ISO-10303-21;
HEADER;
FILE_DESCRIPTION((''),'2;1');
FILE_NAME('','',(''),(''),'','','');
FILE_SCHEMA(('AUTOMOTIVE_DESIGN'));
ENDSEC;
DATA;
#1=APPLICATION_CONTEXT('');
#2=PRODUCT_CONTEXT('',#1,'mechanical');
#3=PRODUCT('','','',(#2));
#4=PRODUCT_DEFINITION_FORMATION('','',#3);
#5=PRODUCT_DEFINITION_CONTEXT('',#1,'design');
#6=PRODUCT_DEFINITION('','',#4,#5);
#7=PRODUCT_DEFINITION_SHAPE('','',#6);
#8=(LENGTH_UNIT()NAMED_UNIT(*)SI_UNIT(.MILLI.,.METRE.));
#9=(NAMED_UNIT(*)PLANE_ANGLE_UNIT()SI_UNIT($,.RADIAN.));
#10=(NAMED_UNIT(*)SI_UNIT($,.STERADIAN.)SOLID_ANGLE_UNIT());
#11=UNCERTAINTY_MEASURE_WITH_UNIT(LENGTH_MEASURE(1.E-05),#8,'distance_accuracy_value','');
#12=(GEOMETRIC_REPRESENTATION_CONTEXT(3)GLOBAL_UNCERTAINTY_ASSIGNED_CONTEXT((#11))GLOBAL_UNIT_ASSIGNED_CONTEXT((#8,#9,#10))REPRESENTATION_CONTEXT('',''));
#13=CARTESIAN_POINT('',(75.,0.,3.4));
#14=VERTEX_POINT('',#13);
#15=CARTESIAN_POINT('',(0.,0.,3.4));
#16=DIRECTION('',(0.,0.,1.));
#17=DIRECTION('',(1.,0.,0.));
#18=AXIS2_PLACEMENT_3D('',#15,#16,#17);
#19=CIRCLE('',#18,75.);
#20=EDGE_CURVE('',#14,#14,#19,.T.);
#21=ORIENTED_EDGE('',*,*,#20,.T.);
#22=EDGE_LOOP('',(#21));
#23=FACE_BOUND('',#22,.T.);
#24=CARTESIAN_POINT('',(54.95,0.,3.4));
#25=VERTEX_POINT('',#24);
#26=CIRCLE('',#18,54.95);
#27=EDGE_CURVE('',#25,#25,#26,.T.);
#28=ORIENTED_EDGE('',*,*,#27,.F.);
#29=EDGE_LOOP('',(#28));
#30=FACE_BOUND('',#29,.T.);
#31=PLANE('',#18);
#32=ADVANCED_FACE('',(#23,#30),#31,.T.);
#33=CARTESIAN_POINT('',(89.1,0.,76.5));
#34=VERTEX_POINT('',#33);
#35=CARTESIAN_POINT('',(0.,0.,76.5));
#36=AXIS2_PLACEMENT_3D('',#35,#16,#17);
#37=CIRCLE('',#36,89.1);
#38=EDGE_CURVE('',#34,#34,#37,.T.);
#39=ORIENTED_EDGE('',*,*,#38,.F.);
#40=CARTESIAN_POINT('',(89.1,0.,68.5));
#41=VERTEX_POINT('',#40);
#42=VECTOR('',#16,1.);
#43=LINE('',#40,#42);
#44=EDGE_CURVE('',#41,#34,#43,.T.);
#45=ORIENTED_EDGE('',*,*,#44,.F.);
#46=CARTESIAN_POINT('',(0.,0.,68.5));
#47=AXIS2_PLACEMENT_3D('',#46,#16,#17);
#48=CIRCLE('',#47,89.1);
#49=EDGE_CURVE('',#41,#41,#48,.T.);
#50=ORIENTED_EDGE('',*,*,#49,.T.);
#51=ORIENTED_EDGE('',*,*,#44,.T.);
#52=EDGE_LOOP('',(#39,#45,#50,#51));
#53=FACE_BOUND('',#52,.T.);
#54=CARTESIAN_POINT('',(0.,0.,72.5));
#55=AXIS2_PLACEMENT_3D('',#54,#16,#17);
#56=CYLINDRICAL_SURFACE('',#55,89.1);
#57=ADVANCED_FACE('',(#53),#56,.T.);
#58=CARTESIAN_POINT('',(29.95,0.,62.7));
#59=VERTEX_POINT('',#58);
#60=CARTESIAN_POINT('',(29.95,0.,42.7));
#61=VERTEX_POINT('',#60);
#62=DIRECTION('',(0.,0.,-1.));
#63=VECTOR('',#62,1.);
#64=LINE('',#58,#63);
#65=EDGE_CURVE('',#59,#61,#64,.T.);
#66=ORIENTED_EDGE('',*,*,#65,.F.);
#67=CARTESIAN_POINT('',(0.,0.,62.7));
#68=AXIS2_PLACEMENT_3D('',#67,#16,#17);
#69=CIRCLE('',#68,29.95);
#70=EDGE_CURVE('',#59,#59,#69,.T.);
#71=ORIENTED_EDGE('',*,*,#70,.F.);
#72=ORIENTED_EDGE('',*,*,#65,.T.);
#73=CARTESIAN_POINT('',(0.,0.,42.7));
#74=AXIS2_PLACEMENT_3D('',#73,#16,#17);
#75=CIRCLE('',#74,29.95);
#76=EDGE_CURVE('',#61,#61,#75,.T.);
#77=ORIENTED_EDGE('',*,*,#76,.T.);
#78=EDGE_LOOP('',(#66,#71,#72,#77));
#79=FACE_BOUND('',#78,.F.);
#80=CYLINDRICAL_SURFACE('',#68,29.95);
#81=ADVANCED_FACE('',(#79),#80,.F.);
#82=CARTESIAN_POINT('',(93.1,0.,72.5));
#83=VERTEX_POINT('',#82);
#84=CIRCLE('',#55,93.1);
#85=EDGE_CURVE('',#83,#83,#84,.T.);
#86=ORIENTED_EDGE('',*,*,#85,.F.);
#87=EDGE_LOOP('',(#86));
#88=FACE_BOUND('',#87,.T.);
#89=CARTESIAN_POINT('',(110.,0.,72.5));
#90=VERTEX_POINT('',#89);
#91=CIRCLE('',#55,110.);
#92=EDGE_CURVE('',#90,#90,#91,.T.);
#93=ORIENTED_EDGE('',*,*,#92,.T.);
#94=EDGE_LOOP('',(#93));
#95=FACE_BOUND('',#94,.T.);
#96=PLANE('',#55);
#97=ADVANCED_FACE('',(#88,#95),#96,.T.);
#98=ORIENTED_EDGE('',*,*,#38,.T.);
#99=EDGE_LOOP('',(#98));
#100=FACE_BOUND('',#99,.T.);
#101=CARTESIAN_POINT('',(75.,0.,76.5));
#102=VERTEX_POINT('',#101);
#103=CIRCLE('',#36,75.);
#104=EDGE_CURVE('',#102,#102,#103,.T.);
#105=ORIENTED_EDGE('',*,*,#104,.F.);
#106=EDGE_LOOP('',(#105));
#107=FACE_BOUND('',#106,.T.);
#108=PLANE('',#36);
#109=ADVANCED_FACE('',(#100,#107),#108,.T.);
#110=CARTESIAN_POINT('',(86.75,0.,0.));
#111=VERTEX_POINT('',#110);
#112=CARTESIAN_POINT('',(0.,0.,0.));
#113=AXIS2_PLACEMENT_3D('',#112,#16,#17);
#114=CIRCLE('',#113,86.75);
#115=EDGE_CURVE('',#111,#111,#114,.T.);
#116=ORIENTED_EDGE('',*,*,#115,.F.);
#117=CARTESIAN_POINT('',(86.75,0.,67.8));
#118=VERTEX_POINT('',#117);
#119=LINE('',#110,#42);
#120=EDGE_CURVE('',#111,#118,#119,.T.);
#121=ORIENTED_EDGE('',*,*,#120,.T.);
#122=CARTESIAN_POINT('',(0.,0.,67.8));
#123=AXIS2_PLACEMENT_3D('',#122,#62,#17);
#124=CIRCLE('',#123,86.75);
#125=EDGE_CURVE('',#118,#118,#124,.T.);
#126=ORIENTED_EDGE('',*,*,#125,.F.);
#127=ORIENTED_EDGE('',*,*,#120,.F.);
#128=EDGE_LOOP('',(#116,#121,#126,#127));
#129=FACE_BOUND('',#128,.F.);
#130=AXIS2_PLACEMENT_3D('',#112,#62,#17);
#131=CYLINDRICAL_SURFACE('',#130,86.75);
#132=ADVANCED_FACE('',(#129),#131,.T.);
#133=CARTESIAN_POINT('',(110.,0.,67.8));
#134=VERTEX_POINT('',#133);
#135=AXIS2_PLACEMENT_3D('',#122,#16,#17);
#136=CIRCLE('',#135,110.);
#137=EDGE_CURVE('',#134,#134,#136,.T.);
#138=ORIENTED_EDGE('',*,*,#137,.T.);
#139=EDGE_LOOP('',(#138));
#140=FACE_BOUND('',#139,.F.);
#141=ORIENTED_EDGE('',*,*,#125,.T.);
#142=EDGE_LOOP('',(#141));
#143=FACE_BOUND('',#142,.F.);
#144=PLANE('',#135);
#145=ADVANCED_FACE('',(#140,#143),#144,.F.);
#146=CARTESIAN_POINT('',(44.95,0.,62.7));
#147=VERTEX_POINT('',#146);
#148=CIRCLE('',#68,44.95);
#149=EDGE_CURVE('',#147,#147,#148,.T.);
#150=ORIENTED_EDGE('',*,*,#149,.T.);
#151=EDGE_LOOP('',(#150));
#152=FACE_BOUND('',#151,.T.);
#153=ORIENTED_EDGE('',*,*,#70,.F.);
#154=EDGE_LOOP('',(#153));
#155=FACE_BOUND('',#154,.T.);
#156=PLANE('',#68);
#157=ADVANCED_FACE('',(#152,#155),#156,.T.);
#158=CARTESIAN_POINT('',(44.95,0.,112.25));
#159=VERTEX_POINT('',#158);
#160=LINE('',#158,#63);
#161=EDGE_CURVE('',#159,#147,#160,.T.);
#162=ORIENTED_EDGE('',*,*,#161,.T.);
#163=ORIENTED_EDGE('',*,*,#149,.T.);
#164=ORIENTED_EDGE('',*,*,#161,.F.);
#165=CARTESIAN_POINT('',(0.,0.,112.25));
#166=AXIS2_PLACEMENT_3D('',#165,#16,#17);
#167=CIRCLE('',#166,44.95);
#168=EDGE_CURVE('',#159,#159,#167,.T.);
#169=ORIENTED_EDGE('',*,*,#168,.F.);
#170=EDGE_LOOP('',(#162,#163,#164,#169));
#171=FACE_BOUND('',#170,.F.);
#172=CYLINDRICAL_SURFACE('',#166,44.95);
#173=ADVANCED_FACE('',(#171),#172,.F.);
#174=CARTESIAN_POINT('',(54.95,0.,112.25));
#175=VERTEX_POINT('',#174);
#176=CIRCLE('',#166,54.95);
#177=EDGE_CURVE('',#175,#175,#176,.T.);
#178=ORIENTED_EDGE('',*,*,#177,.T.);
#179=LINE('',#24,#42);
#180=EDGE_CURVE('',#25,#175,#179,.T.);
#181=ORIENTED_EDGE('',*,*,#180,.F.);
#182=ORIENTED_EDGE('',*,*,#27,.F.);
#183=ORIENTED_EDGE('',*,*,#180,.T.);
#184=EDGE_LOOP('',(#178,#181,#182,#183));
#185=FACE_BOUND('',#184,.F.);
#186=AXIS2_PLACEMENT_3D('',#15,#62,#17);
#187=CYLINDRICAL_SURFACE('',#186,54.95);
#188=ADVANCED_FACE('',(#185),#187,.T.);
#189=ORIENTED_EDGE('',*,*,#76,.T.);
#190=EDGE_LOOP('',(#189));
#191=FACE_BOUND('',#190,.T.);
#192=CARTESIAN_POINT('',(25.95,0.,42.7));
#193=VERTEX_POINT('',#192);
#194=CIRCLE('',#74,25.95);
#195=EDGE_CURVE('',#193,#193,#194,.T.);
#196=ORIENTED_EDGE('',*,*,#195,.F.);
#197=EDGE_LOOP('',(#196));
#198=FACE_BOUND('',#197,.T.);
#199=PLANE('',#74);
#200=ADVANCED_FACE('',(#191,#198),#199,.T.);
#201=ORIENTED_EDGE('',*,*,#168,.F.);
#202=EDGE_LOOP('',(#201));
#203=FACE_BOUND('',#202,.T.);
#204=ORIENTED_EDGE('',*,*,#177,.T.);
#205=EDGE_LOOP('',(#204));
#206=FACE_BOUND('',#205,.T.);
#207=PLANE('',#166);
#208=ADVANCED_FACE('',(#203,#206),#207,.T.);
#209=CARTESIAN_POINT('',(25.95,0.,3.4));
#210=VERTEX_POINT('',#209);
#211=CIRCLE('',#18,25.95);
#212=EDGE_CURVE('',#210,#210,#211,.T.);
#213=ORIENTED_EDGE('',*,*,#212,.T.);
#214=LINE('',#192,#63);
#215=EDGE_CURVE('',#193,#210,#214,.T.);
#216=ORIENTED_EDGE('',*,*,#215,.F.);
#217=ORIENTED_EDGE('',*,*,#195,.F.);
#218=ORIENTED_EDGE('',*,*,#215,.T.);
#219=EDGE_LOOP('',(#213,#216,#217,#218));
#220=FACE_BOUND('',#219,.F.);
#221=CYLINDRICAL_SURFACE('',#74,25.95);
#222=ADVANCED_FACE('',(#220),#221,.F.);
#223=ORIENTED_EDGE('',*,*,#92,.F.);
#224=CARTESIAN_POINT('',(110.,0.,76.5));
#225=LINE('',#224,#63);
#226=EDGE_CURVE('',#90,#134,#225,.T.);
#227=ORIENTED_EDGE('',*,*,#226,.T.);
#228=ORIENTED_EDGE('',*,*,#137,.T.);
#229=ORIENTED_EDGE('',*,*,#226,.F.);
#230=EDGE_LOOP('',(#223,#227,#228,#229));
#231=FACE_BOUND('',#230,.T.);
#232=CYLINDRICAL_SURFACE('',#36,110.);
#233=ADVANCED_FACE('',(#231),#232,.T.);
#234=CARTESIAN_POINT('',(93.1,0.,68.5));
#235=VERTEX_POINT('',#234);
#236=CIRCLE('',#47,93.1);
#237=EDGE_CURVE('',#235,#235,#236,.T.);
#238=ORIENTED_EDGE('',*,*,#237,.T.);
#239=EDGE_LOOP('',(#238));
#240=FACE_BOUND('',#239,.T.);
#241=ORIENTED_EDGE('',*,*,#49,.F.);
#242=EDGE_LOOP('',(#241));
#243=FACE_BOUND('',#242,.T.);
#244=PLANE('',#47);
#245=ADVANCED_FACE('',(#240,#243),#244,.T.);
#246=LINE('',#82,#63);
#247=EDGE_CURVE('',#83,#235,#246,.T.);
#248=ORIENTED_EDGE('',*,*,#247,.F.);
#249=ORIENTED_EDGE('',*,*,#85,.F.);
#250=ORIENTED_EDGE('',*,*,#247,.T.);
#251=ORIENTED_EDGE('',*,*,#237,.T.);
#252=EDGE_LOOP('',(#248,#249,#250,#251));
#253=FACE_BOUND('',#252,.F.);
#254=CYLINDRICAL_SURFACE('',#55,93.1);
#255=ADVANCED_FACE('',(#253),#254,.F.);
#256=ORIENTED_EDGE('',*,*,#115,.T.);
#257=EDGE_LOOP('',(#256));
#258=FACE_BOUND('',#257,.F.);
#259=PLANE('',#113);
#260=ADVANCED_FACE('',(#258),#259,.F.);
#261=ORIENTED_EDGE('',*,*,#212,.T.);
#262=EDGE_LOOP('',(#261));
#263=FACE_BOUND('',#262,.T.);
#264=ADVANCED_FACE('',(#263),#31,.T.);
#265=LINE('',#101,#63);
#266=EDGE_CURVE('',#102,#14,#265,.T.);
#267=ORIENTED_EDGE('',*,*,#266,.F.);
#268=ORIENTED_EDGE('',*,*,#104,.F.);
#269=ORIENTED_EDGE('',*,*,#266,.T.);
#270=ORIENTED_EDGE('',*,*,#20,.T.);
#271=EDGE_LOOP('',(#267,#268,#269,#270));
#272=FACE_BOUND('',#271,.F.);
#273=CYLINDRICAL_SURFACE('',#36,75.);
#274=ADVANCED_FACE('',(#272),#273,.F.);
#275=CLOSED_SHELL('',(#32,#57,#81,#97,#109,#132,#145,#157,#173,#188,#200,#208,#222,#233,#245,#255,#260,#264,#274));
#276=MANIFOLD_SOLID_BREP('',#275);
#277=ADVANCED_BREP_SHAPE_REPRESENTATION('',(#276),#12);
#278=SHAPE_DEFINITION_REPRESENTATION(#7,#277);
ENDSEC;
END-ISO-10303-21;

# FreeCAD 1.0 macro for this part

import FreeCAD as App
import Part
import Sketcher
from FreeCAD import Vector
Q = App.Units.Quantity

doc = App.newDocument("Part")
body = doc.addObject("PartDesign::Body", "Body")

sketch1 = body.newObject("Sketcher::SketchObject", "Sketch")
sketch1.AttachmentSupport = (doc.getObject("XY_Plane"), [""])
sketch1.MapMode = "FlatFace"
sketch1.addGeometry(Part.Circle(Vector(0, 0, 0), Vector(0, 0, 1), 86.75), False)
sketch1.addConstraint([
    Sketcher.Constraint("Coincident", 0, 3, -1, 1),
    Sketcher.Constraint("Diameter", 0, Q("173.5 mm")),
])
pad1 = body.newObject("PartDesign::Pad", "Pad")
pad1.Profile = sketch1
pad1.Length = 76.5

sketch2 = body.newObject("Sketcher::SketchObject", "Sketch001")
sketch2.AttachmentSupport = (doc.getObject("XY_Plane"), [""])
sketch2.MapMode = "FlatFace"
sketch2.AttachmentOffset = App.Placement(Vector(0, 0, 76.5), App.Rotation())
sketch2.addGeometry(Part.Circle(Vector(0, 0, 0), Vector(0, 0, 1), 110), False)
sketch2.addConstraint([
    Sketcher.Constraint("Coincident", 0, 3, -1, 1),
    Sketcher.Constraint("Diameter", 0, Q("220 mm")),
])
pad2 = body.newObject("PartDesign::Pad", "Pad001")
pad2.Profile = sketch2
pad2.Length = 8.7
pad2.Reversed = True

sketch3 = body.newObject("Sketcher::SketchObject", "Sketch002")
sketch3.AttachmentSupport = (doc.getObject("XY_Plane"), [""])
sketch3.MapMode = "FlatFace"
sketch3.AttachmentOffset = App.Placement(Vector(0, 0, 76.5), App.Rotation())
sketch3.addGeometry([
    Part.Circle(Vector(0, 0, 0), Vector(0, 0, 1), 110),
    Part.Circle(Vector(0, 0, 0), Vector(0, 0, 1), 89.1),
], False)
sketch3.addConstraint([
    Sketcher.Constraint("Coincident", 0, 3, -1, 1),
    Sketcher.Constraint("Coincident", 1, 3, -1, 1),
    Sketcher.Constraint("Diameter", 0, Q("220 mm")),
    Sketcher.Constraint("Diameter", 1, Q("178.2 mm")),
])
pocket1 = body.newObject("PartDesign::Pocket", "Pocket")
pocket1.Profile = sketch3
pocket1.Length = 4

sketch4 = body.newObject("Sketcher::SketchObject", "Sketch003")
sketch4.AttachmentSupport = (doc.getObject("XY_Plane"), [""])
sketch4.MapMode = "FlatFace"
sketch4.AttachmentOffset = App.Placement(Vector(0, 0, 72.5), App.Rotation())
sketch4.addGeometry([
    Part.Circle(Vector(0, 0, 0), Vector(0, 0, 1), 93.1),
    Part.Circle(Vector(0, 0, 0), Vector(0, 0, 1), 89.1),
], False)
sketch4.addConstraint([
    Sketcher.Constraint("Coincident", 0, 3, -1, 1),
    Sketcher.Constraint("Coincident", 1, 3, -1, 1),
    Sketcher.Constraint("Diameter", 0, Q("186.2 mm")),
    Sketcher.Constraint("Diameter", 1, Q("178.2 mm")),
])
pocket2 = body.newObject("PartDesign::Pocket", "Pocket001")
pocket2.Profile = sketch4
pocket2.Length = 4

sketch5 = body.newObject("Sketcher::SketchObject", "Sketch004")
sketch5.AttachmentSupport = (doc.getObject("XY_Plane"), [""])
sketch5.MapMode = "FlatFace"
sketch5.AttachmentOffset = App.Placement(Vector(0, 0, 76.5), App.Rotation())
sketch5.addGeometry(Part.Circle(Vector(0, 0, 0), Vector(0, 0, 1), 75), False)
sketch5.addConstraint([
    Sketcher.Constraint("Coincident", 0, 3, -1, 1),
    Sketcher.Constraint("Diameter", 0, Q("150 mm")),
])
pocket3 = body.newObject("PartDesign::Pocket", "Pocket002")
pocket3.Profile = sketch5
pocket3.Length = 73.1

sketch6 = body.newObject("Sketcher::SketchObject", "Sketch005")
sketch6.AttachmentSupport = (doc.getObject("XY_Plane"), [""])
sketch6.MapMode = "FlatFace"
sketch6.AttachmentOffset = App.Placement(Vector(0, 0, 3.4), App.Rotation())
sketch6.addGeometry(Part.Circle(Vector(0, 0, 0), Vector(0, 0, 1), 54.95), False)
sketch6.addConstraint([
    Sketcher.Constraint("Coincident", 0, 3, -1, 1),
    Sketcher.Constraint("Diameter", 0, Q("109.9 mm")),
])
pad3 = body.newObject("PartDesign::Pad", "Pad002")
pad3.Profile = sketch6
pad3.Length = 108.85

sketch7 = body.newObject("Sketcher::SketchObject", "Sketch006")
sketch7.AttachmentSupport = (doc.getObject("XY_Plane"), [""])
sketch7.MapMode = "FlatFace"
sketch7.AttachmentOffset = App.Placement(Vector(0, 0, 112.25), App.Rotation())
sketch7.addGeometry(Part.Circle(Vector(0, 0, 0), Vector(0, 0, 1), 44.95), False)
sketch7.addConstraint([
    Sketcher.Constraint("Coincident", 0, 3, -1, 1),
    Sketcher.Constraint("Diameter", 0, Q("89.9 mm")),
])
pocket4 = body.newObject("PartDesign::Pocket", "Pocket003")
pocket4.Profile = sketch7
pocket4.Length = 49.55

sketch8 = body.newObject("Sketcher::SketchObject", "Sketch007")
sketch8.AttachmentSupport = (doc.getObject("XY_Plane"), [""])
sketch8.MapMode = "FlatFace"
sketch8.AttachmentOffset = App.Placement(Vector(0, 0, 62.7), App.Rotation())
sketch8.addGeometry(Part.Circle(Vector(0, 0, 0), Vector(0, 0, 1), 29.95), False)
sketch8.addConstraint([
    Sketcher.Constraint("Coincident", 0, 3, -1, 1),
    Sketcher.Constraint("Diameter", 0, Q("59.9 mm")),
])
pocket5 = body.newObject("PartDesign::Pocket", "Pocket004")
pocket5.Profile = sketch8
pocket5.Length = 20

sketch9 = body.newObject("Sketcher::SketchObject", "Sketch008")
sketch9.AttachmentSupport = (doc.getObject("XY_Plane"), [""])
sketch9.MapMode = "FlatFace"
sketch9.AttachmentOffset = App.Placement(Vector(0, 0, 42.7), App.Rotation())
sketch9.addGeometry(Part.Circle(Vector(0, 0, 0), Vector(0, 0, 1), 25.95), False)
sketch9.addConstraint([
    Sketcher.Constraint("Coincident", 0, 3, -1, 1),
    Sketcher.Constraint("Diameter", 0, Q("51.9 mm")),
])
pocket6 = body.newObject("PartDesign::Pocket", "Pocket005")
pocket6.Profile = sketch9
pocket6.Length = 39.3

doc.recompute()
